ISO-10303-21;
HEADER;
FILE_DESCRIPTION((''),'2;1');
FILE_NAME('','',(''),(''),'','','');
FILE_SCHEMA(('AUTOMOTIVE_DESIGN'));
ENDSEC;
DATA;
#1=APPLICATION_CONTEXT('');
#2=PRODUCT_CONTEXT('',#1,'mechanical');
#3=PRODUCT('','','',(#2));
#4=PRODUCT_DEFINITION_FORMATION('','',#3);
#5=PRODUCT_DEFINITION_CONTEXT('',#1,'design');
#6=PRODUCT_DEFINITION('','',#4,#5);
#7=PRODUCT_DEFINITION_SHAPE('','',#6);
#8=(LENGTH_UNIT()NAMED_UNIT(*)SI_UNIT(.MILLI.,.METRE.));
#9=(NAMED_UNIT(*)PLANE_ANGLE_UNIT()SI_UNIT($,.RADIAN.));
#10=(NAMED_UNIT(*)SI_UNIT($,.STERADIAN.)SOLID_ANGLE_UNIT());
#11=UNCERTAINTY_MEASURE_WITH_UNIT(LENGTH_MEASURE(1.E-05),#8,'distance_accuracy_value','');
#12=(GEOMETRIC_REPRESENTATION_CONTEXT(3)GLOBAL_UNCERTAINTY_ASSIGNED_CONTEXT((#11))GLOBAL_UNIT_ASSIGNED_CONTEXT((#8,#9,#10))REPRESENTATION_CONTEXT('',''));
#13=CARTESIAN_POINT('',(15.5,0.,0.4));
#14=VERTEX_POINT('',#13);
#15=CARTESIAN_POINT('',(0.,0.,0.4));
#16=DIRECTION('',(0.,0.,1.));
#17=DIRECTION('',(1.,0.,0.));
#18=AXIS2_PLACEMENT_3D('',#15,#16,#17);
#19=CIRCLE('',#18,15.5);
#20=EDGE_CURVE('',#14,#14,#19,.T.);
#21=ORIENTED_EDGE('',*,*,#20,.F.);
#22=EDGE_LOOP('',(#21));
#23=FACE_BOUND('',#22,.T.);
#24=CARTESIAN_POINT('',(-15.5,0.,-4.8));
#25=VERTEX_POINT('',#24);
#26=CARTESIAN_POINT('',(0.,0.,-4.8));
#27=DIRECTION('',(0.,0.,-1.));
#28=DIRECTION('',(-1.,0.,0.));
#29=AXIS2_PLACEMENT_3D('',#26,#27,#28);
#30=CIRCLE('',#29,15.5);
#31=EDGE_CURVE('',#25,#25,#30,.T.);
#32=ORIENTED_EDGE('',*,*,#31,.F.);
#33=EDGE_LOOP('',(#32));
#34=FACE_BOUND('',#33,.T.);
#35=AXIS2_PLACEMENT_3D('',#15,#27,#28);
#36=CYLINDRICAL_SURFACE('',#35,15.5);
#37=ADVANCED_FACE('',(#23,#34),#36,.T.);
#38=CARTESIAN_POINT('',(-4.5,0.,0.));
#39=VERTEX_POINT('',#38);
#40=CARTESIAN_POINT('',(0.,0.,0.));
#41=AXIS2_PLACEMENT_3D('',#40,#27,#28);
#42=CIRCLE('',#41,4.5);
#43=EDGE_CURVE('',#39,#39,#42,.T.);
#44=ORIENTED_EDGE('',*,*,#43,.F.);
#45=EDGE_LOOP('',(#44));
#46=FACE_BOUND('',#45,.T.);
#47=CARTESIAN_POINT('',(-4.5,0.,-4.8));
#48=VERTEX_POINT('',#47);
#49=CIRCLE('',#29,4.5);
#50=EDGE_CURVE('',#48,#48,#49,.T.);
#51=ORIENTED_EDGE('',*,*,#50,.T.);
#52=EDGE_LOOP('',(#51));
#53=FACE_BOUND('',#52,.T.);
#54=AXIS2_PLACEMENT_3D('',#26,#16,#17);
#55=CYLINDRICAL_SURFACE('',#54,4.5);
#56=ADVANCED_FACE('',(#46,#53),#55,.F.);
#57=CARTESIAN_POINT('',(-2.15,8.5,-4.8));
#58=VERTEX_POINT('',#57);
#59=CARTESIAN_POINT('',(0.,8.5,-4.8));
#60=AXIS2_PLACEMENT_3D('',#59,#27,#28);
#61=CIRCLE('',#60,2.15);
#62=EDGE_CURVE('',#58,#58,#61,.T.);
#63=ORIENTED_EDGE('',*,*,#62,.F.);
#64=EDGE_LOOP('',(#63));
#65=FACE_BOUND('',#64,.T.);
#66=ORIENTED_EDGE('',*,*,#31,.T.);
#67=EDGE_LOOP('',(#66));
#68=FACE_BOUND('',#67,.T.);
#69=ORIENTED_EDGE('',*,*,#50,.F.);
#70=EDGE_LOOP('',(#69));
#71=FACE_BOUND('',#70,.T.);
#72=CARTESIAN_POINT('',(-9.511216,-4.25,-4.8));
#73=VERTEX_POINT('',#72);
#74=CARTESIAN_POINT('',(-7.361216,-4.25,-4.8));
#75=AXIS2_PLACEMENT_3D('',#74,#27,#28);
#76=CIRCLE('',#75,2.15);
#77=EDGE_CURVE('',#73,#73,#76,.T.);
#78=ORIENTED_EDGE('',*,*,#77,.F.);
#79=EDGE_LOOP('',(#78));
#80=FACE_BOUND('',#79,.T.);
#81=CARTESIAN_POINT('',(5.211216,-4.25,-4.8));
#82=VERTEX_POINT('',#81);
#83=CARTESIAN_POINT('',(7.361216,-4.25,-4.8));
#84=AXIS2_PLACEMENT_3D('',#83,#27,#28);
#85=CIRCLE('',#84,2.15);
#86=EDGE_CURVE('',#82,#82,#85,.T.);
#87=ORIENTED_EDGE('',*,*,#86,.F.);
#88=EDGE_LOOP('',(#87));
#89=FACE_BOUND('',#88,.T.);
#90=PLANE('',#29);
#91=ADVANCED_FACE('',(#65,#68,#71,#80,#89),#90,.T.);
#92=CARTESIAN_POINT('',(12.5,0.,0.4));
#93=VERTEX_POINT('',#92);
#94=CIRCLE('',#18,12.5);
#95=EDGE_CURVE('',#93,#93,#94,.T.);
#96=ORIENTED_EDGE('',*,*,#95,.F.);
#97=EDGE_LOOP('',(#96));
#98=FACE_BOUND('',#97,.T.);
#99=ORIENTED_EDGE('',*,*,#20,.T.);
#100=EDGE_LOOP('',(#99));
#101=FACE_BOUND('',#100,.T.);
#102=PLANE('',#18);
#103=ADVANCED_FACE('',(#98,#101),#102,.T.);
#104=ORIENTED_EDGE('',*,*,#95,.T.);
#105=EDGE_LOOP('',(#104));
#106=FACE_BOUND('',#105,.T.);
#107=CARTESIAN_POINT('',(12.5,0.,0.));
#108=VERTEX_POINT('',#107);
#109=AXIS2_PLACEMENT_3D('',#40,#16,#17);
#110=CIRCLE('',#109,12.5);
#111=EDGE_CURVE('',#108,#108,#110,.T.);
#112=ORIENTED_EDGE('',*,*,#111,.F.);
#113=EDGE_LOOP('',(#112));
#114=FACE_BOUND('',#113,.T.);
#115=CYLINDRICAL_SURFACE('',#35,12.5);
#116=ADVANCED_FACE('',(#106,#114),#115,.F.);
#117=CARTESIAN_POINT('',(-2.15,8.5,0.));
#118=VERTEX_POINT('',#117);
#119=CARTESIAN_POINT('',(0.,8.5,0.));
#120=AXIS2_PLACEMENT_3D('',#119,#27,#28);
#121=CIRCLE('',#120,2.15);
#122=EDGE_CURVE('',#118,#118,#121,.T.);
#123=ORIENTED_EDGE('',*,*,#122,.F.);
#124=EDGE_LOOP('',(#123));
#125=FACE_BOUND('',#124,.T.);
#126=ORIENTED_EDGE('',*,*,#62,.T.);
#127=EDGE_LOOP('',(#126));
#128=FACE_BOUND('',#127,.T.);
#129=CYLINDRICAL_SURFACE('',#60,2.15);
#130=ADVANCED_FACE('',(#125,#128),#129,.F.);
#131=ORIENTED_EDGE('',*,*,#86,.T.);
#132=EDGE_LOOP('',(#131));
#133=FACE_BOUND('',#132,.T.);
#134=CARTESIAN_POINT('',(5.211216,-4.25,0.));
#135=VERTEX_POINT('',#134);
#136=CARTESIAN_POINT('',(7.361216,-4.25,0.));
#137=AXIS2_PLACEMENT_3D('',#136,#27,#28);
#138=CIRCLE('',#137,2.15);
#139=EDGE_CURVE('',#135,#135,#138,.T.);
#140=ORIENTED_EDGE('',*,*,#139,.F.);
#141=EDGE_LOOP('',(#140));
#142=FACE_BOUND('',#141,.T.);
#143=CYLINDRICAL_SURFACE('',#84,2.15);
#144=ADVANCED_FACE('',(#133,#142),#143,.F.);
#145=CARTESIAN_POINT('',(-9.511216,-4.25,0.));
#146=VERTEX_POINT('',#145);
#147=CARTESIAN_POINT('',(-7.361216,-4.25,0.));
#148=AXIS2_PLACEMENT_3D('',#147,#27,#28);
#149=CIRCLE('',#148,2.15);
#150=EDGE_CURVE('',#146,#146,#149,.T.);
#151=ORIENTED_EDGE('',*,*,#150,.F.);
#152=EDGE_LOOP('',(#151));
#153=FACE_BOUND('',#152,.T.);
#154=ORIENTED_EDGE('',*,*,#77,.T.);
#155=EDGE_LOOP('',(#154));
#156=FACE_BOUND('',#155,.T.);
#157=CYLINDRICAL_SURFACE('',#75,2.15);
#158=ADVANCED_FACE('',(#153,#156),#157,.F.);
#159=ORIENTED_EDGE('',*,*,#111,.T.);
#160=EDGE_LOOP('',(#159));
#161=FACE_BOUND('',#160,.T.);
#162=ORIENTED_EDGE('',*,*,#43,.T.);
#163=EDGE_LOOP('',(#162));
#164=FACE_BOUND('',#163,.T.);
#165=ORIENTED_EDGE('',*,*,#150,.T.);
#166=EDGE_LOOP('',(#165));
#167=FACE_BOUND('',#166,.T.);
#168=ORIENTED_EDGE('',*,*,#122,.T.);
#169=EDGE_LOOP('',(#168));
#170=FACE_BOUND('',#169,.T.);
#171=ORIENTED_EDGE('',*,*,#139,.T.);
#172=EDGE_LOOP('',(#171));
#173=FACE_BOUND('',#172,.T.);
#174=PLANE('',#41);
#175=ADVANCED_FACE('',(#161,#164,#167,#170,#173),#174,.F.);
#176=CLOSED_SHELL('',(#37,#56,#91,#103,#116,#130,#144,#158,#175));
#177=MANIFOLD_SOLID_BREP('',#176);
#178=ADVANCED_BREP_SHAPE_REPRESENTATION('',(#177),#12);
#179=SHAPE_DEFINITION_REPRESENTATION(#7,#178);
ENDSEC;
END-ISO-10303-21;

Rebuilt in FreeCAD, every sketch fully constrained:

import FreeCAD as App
import Part
import Sketcher
Q = App.Units.Quantity

doc = App.newDocument("Part")
params = doc.addObject("Spreadsheet::Sheet", "Params")
for row, (alias, value) in enumerate([
    ("sketch1_diameter", "31 mm"),
    ("sketch1_diameter2", "25 mm"),
    ("pad1_length", "0.4 mm"),
    ("sketch2_diameter", "31 mm"),
    ("sketch2_diameter2", "9 mm"),
    ("pad2_length", "4.8 mm"),
    ("sketch3_diameter", "4.3 mm"),
    ("hole_diameter", "4.3 mm"),
], start=1):
    params.set(f"A{row}", alias)
    params.set(f"B{row}", "=" + value)
    params.setAlias(f"B{row}", alias)

body = doc.addObject("PartDesign::Body", "Body")

# Sketch on XY plane
sketch1 = body.newObject("Sketcher::SketchObject", "Sketch")
sketch1.AttachmentSupport = (doc.getObject("XY_Plane"), [""])
sketch1.MapMode = "FlatFace"
sketch1.addGeometry([
    Part.Circle(App.Vector(0, 0, 0), App.Vector(0, 0, 1), 15.5),
    Part.Circle(App.Vector(0, 0, 0), App.Vector(0, 0, 1), 12.5),
], False)
sketch1.addConstraint([
    Sketcher.Constraint("Coincident", 0, 3, -1, 1),
    Sketcher.Constraint("Coincident", 1, 3, -1, 1),
    Sketcher.Constraint("Diameter", 0, Q("31 mm")),
    Sketcher.Constraint("Diameter", 1, Q("25 mm")),
])
sketch1.setExpression("Constraints[2]", "Params.sketch1_diameter")
sketch1.setExpression("Constraints[3]", "Params.sketch1_diameter2")
pad1 = body.newObject("PartDesign::Pad", "Pad")
pad1.Profile = sketch1
pad1.setExpression("Length", "Params.pad1_length")

# Sketch on XY plane
sketch2 = body.newObject("Sketcher::SketchObject", "Sketch001")
sketch2.AttachmentSupport = (doc.getObject("XY_Plane"), [""])
sketch2.MapMode = "FlatFace"
sketch2.addGeometry([
    Part.Circle(App.Vector(0, 0, 0), App.Vector(0, 0, 1), 15.5),
    Part.Circle(App.Vector(0, 0, 0), App.Vector(0, 0, 1), 4.5),
], False)
sketch2.addConstraint([
    Sketcher.Constraint("Coincident", 0, 3, -1, 1),
    Sketcher.Constraint("Coincident", 1, 3, -1, 1),
    Sketcher.Constraint("Diameter", 0, Q("31 mm")),
    Sketcher.Constraint("Diameter", 1, Q("9 mm")),
])
sketch2.setExpression("Constraints[2]", "Params.sketch2_diameter")
sketch2.setExpression("Constraints[3]", "Params.sketch2_diameter2")
pad2 = body.newObject("PartDesign::Pad", "Pad001")
pad2.Profile = sketch2
pad2.setExpression("Length", "Params.pad2_length")
pad2.Reversed = True

# Sketch on XY plane
sketch3 = body.newObject("Sketcher::SketchObject", "Sketch002")
sketch3.AttachmentSupport = (doc.getObject("XY_Plane"), [""])
sketch3.MapMode = "FlatFace"
sketch3.AttachmentOffset = App.Placement(App.Vector(0, 0, -4.8), App.Rotation())
sketch3.addGeometry([
    Part.Circle(App.Vector(0, 8.5, 0), App.Vector(0, 0, 1), 2.15),
    Part.Circle(App.Vector(-7.361216, -4.25, 0), App.Vector(0, 0, 1), 2.15),
    Part.Circle(App.Vector(7.361216, -4.25, 0), App.Vector(0, 0, 1), 2.15),
], False)
sketch3.addConstraint([
    Sketcher.Constraint("Equal", 0, 1),
    Sketcher.Constraint("Equal", 1, 2),
    Sketcher.Constraint("Symmetric", 1, 3, 2, 3, -2),
    Sketcher.Constraint("PointOnObject", 0, 3, -2),
    Sketcher.Constraint("Diameter", 0, Q("4.3 mm")),
    Sketcher.Constraint("DistanceY", -1, 1, 0, 3, Q("8.5 mm")),
    Sketcher.Constraint("DistanceY", 1, 3, -1, 1, Q("4.25 mm")),
    Sketcher.Constraint("DistanceX", 1, 3, 2, 3, Q("14.722432 mm")),
])
sketch3.setExpression("Constraints[4]", "Params.sketch3_diameter")
doc.recompute()
hole = body.newObject("PartDesign::Hole", "Hole")
hole.Profile = sketch3
hole.ThreadType = "None"
hole.setExpression("Diameter", "Params.hole_diameter")
hole.DepthType = "ThroughAll"
hole.Reversed = True

doc.recompute()
